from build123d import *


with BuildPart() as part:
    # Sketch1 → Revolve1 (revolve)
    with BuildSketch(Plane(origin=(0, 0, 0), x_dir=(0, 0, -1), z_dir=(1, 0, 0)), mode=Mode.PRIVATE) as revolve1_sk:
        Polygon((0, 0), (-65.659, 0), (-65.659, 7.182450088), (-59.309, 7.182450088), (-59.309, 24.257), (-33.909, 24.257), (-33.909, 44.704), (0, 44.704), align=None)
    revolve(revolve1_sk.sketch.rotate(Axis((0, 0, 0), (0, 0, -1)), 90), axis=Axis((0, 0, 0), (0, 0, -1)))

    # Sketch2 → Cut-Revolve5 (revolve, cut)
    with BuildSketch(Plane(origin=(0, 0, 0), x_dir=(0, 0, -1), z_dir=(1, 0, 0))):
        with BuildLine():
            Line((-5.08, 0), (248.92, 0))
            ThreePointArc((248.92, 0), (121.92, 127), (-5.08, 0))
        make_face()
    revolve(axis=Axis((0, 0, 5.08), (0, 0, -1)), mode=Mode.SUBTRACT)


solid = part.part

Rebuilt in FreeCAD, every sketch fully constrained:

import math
import FreeCAD as App
import Part
import Sketcher
from FreeCAD import Vector
Q = App.Units.Quantity

doc = App.newDocument("Part")
params = doc.addObject("Spreadsheet::Sheet", "Params")
for row, (alias, value) in enumerate([
    ("sketch1_height", "1 in"),
    ("sketch1_width", "1.76 in"),
    ("sketch1_height2", "0.25 in"),
    ("sketch1_width2", "0.805 in"),
    ("sketch1_height3", "2.585 in"),
    ("revolution_angle", "360 deg"),
    ("sketch2_radius", "5 in"),
    ("groove_angle", "360 deg"),
], start=1):
    params.set(f"A{row}", alias)
    params.set(f"B{row}", "=" + value)
    params.setAlias(f"B{row}", alias)

body = doc.addObject("PartDesign::Body", "Body")

sketch1 = body.newObject("Sketcher::SketchObject", "Sketch")
sketch1.AttachmentSupport = (doc.getObject("YZ_Plane"), [""])
sketch1.MapMode = "FlatFace"
sketch1.addGeometry([
    Part.LineSegment(Vector(0, 66, 0), Vector(0, 0, 0)),
    Part.LineSegment(Vector(0, 0, 0), Vector(45, 0, 0)),
    Part.LineSegment(Vector(45, 0, 0), Vector(45, 34, 0)),
    Part.LineSegment(Vector(45, 34, 0), Vector(24, 34, 0)),
    Part.LineSegment(Vector(24, 34, 0), Vector(24, 59, 0)),
    Part.LineSegment(Vector(24, 59, 0), Vector(7, 59, 0)),
    Part.LineSegment(Vector(7, 59, 0), Vector(7, 66, 0)),
    Part.LineSegment(Vector(7, 66, 0), Vector(0, 66, 0)),
], False)
sketch1.addConstraint([
    Sketcher.Constraint("Coincident", 0, 2, 1, 1),
    Sketcher.Constraint("Coincident", 1, 2, 2, 1),
    Sketcher.Constraint("Coincident", 2, 2, 3, 1),
    Sketcher.Constraint("Coincident", 3, 2, 4, 1),
    Sketcher.Constraint("Coincident", 4, 2, 5, 1),
    Sketcher.Constraint("Coincident", 5, 2, 6, 1),
    Sketcher.Constraint("Coincident", 6, 2, 7, 1),
    Sketcher.Constraint("Coincident", 7, 2, 0, 1),
    Sketcher.Constraint("Vertical", 0),
    Sketcher.Constraint("Horizontal", 1),
    Sketcher.Constraint("Vertical", 2),
    Sketcher.Constraint("Horizontal", 3),
    Sketcher.Constraint("Vertical", 4),
    Sketcher.Constraint("Horizontal", 5),
    Sketcher.Constraint("Vertical", 6),
    Sketcher.Constraint("Horizontal", 7),
    Sketcher.Constraint("Coincident", 0, 2, -1, 1),
    Sketcher.Constraint("DistanceY", 4, 1, 4, 2, Q("1 in")),
    Sketcher.Constraint("DistanceX", 1, 1, 1, 2, Q("1.76 in")),
    Sketcher.Constraint("DistanceY", 6, 1, 6, 2, Q("0.25 in")),
    Sketcher.Constraint("DistanceX", 3, 2, 3, 1, Q("0.805 in")),
    Sketcher.Constraint("DistanceY", 0, 2, 0, 1, Q("2.585 in")),
    Sketcher.Constraint("DistanceX", 5, 2, 5, 1, Q("17.07455 mm")),
])
sketch1.setExpression("Constraints[17]", "Params.sketch1_height")
sketch1.setExpression("Constraints[18]", "Params.sketch1_width")
sketch1.setExpression("Constraints[19]", "Params.sketch1_height2")
sketch1.setExpression("Constraints[20]", "Params.sketch1_width2")
sketch1.setExpression("Constraints[21]", "Params.sketch1_height3")
revolution = body.newObject("PartDesign::Revolution", "Revolution")
revolution.Profile = sketch1
revolution.ReferenceAxis = (sketch1, ["V_Axis"])
revolution.setExpression("Angle", "Params.revolution_angle")

sketch2 = body.newObject("Sketcher::SketchObject", "Sketch001")
sketch2.AttachmentSupport = (doc.getObject("YZ_Plane"), [""])
sketch2.MapMode = "FlatFace"
sketch2.addGeometry([
    Part.LineSegment(Vector(0, 5, 0), Vector(0, -249, 0)),
    Part.ArcOfCircle(Part.Circle(Vector(0, -122, 0), Vector(0, 0, 1), 127), math.radians(-90), math.radians(90)),
], False)
sketch2.addConstraint([
    Sketcher.Constraint("Coincident", 0, 1, 1, 2),
    Sketcher.Constraint("Coincident", 1, 1, 0, 2),
    Sketcher.Constraint("Vertical", 0),
    Sketcher.Constraint("PointOnObject", 1, 3, -2),
    Sketcher.Constraint("PointOnObject", 0, 1, -2),
    Sketcher.Constraint("Radius", 1, Q("5 in")),
    Sketcher.Constraint("DistanceY", 1, 3, -1, 1, Q("4.8 in")),
])
sketch2.setExpression("Constraints[5]", "Params.sketch2_radius")
groove = body.newObject("PartDesign::Groove", "Groove")
groove.Profile = sketch2
groove.ReferenceAxis = (sketch2, ["V_Axis"])
groove.setExpression("Angle", "Params.groove_angle")

doc.recompute()
